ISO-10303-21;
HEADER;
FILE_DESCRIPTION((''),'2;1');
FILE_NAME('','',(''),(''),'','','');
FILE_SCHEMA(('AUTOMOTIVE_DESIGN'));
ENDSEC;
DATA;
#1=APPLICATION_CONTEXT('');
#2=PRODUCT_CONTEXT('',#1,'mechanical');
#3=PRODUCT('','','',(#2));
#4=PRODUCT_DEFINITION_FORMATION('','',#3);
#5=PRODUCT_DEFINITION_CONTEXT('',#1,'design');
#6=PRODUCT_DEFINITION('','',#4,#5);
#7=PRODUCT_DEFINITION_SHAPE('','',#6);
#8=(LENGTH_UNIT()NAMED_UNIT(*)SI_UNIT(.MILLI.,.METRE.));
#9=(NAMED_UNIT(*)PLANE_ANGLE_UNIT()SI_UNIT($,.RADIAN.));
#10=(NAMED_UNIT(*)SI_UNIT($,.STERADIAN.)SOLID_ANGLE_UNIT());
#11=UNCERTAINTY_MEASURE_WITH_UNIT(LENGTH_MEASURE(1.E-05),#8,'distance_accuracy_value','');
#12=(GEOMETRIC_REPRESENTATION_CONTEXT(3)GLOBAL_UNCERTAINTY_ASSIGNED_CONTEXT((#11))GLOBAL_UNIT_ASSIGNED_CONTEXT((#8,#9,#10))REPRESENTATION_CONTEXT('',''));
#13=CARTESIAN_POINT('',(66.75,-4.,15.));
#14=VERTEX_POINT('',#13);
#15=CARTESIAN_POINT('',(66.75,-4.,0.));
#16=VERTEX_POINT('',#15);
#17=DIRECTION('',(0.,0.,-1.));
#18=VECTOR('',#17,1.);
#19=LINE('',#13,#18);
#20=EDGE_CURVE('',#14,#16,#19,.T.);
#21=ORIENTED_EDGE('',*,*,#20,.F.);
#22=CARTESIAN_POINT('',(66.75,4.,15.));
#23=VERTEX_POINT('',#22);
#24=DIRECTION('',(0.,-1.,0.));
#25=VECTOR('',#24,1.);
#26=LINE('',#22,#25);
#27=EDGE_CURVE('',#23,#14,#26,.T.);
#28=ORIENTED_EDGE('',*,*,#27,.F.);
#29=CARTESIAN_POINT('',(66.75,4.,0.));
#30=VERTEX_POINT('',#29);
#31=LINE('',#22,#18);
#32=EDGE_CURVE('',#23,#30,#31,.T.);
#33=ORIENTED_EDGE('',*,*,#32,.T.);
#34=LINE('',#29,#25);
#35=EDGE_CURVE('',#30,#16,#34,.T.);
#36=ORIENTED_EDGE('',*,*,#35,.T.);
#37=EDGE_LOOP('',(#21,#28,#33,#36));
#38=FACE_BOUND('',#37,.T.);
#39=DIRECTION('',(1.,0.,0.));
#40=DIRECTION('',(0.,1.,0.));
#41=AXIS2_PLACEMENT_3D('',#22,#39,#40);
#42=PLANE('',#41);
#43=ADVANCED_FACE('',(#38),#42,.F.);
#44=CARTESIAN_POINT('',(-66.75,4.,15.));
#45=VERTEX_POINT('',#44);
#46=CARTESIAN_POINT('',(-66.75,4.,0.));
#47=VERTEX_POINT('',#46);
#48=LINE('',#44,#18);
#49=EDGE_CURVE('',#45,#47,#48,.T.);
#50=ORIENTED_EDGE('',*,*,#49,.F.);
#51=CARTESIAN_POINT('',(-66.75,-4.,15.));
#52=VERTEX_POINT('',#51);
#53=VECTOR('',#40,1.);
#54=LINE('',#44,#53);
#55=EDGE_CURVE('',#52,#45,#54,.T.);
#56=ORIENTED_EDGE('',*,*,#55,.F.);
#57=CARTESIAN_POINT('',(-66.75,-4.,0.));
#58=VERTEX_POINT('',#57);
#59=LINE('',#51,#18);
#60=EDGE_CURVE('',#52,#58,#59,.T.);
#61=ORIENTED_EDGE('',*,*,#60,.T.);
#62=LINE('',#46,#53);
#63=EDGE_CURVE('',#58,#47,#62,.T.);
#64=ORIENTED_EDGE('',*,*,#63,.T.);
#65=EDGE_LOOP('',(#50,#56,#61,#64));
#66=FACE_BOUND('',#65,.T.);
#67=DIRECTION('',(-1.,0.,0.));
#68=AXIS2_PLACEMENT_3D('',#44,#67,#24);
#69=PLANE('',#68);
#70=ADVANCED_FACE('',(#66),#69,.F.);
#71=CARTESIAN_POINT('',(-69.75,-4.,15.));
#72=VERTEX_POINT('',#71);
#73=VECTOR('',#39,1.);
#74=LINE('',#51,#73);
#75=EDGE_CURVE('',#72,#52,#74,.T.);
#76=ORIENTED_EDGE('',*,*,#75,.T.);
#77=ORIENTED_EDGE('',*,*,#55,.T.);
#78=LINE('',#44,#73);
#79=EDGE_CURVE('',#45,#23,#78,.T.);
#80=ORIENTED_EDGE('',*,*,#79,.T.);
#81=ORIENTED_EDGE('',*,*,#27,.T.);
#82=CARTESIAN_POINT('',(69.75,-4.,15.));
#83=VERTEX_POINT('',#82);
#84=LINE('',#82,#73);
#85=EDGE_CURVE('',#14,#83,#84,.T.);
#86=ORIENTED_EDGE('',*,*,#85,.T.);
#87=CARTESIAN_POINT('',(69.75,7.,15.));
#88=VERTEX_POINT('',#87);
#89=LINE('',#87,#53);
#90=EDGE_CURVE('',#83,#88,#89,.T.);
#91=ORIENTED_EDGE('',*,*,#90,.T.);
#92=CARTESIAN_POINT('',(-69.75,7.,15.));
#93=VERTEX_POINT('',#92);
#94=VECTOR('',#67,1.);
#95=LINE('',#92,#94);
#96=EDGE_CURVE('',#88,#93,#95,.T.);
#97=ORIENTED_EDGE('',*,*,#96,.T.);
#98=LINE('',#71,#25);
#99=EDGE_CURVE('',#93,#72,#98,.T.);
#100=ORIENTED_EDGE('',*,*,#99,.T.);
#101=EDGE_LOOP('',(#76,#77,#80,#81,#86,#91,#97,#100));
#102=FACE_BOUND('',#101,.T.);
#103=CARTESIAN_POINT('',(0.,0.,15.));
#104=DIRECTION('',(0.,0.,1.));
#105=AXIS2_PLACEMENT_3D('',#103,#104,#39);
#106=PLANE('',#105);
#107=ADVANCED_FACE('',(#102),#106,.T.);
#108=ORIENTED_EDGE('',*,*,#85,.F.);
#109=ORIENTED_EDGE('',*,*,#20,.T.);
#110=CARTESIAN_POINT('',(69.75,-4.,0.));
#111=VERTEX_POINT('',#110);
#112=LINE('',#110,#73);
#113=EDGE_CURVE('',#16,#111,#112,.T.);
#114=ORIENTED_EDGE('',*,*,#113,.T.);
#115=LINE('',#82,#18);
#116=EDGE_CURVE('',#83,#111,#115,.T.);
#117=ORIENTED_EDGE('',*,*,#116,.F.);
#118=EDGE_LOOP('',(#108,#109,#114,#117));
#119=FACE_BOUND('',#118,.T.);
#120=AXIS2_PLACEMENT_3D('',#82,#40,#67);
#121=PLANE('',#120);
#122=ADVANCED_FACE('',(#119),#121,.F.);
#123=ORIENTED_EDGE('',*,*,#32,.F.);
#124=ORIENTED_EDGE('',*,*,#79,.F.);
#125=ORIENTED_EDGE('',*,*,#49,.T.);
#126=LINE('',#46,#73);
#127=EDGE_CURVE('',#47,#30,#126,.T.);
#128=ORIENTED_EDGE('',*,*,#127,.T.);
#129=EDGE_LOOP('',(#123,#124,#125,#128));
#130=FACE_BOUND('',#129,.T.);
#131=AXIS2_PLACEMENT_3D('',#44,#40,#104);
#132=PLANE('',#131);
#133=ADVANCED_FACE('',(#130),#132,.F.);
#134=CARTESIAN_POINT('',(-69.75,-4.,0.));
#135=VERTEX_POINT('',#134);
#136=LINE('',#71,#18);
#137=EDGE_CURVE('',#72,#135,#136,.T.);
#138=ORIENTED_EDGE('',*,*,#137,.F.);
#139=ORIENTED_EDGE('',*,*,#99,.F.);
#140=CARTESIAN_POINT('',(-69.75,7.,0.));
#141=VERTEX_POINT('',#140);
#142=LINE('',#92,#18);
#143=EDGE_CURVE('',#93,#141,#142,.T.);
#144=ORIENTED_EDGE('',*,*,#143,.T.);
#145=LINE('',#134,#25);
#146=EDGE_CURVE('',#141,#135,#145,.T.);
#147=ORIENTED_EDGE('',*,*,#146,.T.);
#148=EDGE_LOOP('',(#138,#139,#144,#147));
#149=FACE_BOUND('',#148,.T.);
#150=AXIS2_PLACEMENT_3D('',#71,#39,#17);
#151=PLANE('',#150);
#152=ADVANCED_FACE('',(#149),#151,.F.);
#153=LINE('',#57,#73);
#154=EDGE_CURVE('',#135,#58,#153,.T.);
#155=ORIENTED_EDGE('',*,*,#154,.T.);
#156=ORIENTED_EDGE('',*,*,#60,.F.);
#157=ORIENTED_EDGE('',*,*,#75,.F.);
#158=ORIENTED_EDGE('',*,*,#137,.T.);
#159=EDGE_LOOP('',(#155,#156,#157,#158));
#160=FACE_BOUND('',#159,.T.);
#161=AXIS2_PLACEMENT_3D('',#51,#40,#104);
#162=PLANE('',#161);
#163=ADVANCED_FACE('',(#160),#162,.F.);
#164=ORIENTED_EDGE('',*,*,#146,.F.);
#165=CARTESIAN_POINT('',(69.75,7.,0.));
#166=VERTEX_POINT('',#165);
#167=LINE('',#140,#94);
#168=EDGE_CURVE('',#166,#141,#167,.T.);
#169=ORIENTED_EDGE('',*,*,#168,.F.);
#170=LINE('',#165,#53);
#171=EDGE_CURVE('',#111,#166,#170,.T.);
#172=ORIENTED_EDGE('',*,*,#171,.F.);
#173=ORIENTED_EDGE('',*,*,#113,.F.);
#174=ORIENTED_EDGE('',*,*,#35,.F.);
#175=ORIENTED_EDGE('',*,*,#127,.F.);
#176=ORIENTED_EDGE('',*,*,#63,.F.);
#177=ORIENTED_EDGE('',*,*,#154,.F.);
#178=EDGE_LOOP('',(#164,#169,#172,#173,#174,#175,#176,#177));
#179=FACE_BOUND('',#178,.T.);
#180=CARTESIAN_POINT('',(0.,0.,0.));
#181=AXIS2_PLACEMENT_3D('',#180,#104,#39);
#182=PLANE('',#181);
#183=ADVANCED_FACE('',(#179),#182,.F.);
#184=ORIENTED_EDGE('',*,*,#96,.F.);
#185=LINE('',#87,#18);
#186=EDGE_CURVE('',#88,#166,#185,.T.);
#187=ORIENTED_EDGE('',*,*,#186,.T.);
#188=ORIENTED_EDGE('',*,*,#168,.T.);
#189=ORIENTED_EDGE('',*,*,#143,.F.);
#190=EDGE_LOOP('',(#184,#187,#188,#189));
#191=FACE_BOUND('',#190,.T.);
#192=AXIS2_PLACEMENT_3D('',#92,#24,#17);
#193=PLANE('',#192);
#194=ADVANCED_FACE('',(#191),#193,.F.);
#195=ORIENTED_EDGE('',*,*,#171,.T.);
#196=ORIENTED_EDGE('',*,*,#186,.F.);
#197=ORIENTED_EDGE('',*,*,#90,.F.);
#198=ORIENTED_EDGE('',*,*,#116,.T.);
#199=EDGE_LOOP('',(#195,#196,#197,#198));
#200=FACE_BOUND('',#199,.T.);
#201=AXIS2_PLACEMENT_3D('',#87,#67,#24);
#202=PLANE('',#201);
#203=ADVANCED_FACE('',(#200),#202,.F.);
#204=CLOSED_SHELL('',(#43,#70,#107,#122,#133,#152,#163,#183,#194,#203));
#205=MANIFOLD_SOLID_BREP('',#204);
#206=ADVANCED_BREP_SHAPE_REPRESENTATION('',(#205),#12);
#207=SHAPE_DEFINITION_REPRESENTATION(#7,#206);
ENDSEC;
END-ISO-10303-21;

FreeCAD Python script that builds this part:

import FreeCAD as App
import Part
import Sketcher
Q = App.Units.Quantity

doc = App.newDocument("Part")
params = doc.addObject("Spreadsheet::Sheet", "Params")
for row, (alias, value) in enumerate([
    ("sketch1_width", "3 mm"),
    ("sketch1_height", "8 mm"),
    ("sketch1_height2", "11 mm"),
    ("sketch1_width2", "133.5 mm"),
    ("pad1_length", "15 mm"),
], start=1):
    params.set(f"A{row}", alias)
    params.set(f"B{row}", "=" + value)
    params.setAlias(f"B{row}", alias)

body = doc.addObject("PartDesign::Body", "Body")

sketch1 = doc.addObject("Sketcher::SketchObject", "Sketch")
body.addObject(sketch1)
sketch1.AttachmentSupport = (doc.XY_Plane, [""])
sketch1.MapMode = "FlatFace"
sketch1.addGeometry([
    Part.LineSegment(App.Vector(-69.75, -4, 0), App.Vector(-66.75, -4, 0)),
    Part.LineSegment(App.Vector(-66.75, -4, 0), App.Vector(-66.75, 4, 0)),
    Part.LineSegment(App.Vector(-66.75, 4, 0), App.Vector(66.75, 4, 0)),
    Part.LineSegment(App.Vector(66.75, 4, 0), App.Vector(66.75, -4, 0)),
    Part.LineSegment(App.Vector(66.75, -4, 0), App.Vector(69.75, -4, 0)),
    Part.LineSegment(App.Vector(69.75, -4, 0), App.Vector(69.75, 7, 0)),
    Part.LineSegment(App.Vector(69.75, 7, 0), App.Vector(-69.75, 7, 0)),
    Part.LineSegment(App.Vector(-69.75, 7, 0), App.Vector(-69.75, -4, 0)),
], False)
sketch1.addConstraint([
    Sketcher.Constraint("Coincident", 0, 2, 1, 1),
    Sketcher.Constraint("Coincident", 1, 2, 2, 1),
    Sketcher.Constraint("Coincident", 2, 2, 3, 1),
    Sketcher.Constraint("Coincident", 3, 2, 4, 1),
    Sketcher.Constraint("Coincident", 4, 2, 5, 1),
    Sketcher.Constraint("Coincident", 5, 2, 6, 1),
    Sketcher.Constraint("Coincident", 6, 2, 7, 1),
    Sketcher.Constraint("Coincident", 7, 2, 0, 1),
    Sketcher.Constraint("Horizontal", 0),
    Sketcher.Constraint("Vertical", 1),
    Sketcher.Constraint("Horizontal", 2),
    Sketcher.Constraint("Vertical", 3),
    Sketcher.Constraint("Horizontal", 4),
    Sketcher.Constraint("Vertical", 5),
    Sketcher.Constraint("Horizontal", 6),
    Sketcher.Constraint("Vertical", 7),
    Sketcher.Constraint("Symmetric", 0, 2, 2, 2, -1, 1),
    Sketcher.Constraint("Symmetric", 4, 2, 7, 2, -2),
    Sketcher.Constraint("DistanceX", 0, 1, 0, 2, Q("3 mm")),
    Sketcher.Constraint("DistanceY", 1, 1, 1, 2, Q("8 mm")),
    Sketcher.Constraint("DistanceY", 5, 1, 5, 2, Q("11 mm")),
    Sketcher.Constraint("DistanceX", 2, 1, 2, 2, Q("133.5 mm")),
])
sketch1.setExpression("Constraints[18]", "Params.sketch1_width")
sketch1.setExpression("Constraints[19]", "Params.sketch1_height")
sketch1.setExpression("Constraints[20]", "Params.sketch1_height2")
sketch1.setExpression("Constraints[21]", "Params.sketch1_width2")
pad1 = doc.addObject("PartDesign::Pad", "Pad")
body.addObject(pad1)
pad1.Profile = sketch1
pad1.setExpression("Length", "Params.pad1_length")

doc.recompute()
